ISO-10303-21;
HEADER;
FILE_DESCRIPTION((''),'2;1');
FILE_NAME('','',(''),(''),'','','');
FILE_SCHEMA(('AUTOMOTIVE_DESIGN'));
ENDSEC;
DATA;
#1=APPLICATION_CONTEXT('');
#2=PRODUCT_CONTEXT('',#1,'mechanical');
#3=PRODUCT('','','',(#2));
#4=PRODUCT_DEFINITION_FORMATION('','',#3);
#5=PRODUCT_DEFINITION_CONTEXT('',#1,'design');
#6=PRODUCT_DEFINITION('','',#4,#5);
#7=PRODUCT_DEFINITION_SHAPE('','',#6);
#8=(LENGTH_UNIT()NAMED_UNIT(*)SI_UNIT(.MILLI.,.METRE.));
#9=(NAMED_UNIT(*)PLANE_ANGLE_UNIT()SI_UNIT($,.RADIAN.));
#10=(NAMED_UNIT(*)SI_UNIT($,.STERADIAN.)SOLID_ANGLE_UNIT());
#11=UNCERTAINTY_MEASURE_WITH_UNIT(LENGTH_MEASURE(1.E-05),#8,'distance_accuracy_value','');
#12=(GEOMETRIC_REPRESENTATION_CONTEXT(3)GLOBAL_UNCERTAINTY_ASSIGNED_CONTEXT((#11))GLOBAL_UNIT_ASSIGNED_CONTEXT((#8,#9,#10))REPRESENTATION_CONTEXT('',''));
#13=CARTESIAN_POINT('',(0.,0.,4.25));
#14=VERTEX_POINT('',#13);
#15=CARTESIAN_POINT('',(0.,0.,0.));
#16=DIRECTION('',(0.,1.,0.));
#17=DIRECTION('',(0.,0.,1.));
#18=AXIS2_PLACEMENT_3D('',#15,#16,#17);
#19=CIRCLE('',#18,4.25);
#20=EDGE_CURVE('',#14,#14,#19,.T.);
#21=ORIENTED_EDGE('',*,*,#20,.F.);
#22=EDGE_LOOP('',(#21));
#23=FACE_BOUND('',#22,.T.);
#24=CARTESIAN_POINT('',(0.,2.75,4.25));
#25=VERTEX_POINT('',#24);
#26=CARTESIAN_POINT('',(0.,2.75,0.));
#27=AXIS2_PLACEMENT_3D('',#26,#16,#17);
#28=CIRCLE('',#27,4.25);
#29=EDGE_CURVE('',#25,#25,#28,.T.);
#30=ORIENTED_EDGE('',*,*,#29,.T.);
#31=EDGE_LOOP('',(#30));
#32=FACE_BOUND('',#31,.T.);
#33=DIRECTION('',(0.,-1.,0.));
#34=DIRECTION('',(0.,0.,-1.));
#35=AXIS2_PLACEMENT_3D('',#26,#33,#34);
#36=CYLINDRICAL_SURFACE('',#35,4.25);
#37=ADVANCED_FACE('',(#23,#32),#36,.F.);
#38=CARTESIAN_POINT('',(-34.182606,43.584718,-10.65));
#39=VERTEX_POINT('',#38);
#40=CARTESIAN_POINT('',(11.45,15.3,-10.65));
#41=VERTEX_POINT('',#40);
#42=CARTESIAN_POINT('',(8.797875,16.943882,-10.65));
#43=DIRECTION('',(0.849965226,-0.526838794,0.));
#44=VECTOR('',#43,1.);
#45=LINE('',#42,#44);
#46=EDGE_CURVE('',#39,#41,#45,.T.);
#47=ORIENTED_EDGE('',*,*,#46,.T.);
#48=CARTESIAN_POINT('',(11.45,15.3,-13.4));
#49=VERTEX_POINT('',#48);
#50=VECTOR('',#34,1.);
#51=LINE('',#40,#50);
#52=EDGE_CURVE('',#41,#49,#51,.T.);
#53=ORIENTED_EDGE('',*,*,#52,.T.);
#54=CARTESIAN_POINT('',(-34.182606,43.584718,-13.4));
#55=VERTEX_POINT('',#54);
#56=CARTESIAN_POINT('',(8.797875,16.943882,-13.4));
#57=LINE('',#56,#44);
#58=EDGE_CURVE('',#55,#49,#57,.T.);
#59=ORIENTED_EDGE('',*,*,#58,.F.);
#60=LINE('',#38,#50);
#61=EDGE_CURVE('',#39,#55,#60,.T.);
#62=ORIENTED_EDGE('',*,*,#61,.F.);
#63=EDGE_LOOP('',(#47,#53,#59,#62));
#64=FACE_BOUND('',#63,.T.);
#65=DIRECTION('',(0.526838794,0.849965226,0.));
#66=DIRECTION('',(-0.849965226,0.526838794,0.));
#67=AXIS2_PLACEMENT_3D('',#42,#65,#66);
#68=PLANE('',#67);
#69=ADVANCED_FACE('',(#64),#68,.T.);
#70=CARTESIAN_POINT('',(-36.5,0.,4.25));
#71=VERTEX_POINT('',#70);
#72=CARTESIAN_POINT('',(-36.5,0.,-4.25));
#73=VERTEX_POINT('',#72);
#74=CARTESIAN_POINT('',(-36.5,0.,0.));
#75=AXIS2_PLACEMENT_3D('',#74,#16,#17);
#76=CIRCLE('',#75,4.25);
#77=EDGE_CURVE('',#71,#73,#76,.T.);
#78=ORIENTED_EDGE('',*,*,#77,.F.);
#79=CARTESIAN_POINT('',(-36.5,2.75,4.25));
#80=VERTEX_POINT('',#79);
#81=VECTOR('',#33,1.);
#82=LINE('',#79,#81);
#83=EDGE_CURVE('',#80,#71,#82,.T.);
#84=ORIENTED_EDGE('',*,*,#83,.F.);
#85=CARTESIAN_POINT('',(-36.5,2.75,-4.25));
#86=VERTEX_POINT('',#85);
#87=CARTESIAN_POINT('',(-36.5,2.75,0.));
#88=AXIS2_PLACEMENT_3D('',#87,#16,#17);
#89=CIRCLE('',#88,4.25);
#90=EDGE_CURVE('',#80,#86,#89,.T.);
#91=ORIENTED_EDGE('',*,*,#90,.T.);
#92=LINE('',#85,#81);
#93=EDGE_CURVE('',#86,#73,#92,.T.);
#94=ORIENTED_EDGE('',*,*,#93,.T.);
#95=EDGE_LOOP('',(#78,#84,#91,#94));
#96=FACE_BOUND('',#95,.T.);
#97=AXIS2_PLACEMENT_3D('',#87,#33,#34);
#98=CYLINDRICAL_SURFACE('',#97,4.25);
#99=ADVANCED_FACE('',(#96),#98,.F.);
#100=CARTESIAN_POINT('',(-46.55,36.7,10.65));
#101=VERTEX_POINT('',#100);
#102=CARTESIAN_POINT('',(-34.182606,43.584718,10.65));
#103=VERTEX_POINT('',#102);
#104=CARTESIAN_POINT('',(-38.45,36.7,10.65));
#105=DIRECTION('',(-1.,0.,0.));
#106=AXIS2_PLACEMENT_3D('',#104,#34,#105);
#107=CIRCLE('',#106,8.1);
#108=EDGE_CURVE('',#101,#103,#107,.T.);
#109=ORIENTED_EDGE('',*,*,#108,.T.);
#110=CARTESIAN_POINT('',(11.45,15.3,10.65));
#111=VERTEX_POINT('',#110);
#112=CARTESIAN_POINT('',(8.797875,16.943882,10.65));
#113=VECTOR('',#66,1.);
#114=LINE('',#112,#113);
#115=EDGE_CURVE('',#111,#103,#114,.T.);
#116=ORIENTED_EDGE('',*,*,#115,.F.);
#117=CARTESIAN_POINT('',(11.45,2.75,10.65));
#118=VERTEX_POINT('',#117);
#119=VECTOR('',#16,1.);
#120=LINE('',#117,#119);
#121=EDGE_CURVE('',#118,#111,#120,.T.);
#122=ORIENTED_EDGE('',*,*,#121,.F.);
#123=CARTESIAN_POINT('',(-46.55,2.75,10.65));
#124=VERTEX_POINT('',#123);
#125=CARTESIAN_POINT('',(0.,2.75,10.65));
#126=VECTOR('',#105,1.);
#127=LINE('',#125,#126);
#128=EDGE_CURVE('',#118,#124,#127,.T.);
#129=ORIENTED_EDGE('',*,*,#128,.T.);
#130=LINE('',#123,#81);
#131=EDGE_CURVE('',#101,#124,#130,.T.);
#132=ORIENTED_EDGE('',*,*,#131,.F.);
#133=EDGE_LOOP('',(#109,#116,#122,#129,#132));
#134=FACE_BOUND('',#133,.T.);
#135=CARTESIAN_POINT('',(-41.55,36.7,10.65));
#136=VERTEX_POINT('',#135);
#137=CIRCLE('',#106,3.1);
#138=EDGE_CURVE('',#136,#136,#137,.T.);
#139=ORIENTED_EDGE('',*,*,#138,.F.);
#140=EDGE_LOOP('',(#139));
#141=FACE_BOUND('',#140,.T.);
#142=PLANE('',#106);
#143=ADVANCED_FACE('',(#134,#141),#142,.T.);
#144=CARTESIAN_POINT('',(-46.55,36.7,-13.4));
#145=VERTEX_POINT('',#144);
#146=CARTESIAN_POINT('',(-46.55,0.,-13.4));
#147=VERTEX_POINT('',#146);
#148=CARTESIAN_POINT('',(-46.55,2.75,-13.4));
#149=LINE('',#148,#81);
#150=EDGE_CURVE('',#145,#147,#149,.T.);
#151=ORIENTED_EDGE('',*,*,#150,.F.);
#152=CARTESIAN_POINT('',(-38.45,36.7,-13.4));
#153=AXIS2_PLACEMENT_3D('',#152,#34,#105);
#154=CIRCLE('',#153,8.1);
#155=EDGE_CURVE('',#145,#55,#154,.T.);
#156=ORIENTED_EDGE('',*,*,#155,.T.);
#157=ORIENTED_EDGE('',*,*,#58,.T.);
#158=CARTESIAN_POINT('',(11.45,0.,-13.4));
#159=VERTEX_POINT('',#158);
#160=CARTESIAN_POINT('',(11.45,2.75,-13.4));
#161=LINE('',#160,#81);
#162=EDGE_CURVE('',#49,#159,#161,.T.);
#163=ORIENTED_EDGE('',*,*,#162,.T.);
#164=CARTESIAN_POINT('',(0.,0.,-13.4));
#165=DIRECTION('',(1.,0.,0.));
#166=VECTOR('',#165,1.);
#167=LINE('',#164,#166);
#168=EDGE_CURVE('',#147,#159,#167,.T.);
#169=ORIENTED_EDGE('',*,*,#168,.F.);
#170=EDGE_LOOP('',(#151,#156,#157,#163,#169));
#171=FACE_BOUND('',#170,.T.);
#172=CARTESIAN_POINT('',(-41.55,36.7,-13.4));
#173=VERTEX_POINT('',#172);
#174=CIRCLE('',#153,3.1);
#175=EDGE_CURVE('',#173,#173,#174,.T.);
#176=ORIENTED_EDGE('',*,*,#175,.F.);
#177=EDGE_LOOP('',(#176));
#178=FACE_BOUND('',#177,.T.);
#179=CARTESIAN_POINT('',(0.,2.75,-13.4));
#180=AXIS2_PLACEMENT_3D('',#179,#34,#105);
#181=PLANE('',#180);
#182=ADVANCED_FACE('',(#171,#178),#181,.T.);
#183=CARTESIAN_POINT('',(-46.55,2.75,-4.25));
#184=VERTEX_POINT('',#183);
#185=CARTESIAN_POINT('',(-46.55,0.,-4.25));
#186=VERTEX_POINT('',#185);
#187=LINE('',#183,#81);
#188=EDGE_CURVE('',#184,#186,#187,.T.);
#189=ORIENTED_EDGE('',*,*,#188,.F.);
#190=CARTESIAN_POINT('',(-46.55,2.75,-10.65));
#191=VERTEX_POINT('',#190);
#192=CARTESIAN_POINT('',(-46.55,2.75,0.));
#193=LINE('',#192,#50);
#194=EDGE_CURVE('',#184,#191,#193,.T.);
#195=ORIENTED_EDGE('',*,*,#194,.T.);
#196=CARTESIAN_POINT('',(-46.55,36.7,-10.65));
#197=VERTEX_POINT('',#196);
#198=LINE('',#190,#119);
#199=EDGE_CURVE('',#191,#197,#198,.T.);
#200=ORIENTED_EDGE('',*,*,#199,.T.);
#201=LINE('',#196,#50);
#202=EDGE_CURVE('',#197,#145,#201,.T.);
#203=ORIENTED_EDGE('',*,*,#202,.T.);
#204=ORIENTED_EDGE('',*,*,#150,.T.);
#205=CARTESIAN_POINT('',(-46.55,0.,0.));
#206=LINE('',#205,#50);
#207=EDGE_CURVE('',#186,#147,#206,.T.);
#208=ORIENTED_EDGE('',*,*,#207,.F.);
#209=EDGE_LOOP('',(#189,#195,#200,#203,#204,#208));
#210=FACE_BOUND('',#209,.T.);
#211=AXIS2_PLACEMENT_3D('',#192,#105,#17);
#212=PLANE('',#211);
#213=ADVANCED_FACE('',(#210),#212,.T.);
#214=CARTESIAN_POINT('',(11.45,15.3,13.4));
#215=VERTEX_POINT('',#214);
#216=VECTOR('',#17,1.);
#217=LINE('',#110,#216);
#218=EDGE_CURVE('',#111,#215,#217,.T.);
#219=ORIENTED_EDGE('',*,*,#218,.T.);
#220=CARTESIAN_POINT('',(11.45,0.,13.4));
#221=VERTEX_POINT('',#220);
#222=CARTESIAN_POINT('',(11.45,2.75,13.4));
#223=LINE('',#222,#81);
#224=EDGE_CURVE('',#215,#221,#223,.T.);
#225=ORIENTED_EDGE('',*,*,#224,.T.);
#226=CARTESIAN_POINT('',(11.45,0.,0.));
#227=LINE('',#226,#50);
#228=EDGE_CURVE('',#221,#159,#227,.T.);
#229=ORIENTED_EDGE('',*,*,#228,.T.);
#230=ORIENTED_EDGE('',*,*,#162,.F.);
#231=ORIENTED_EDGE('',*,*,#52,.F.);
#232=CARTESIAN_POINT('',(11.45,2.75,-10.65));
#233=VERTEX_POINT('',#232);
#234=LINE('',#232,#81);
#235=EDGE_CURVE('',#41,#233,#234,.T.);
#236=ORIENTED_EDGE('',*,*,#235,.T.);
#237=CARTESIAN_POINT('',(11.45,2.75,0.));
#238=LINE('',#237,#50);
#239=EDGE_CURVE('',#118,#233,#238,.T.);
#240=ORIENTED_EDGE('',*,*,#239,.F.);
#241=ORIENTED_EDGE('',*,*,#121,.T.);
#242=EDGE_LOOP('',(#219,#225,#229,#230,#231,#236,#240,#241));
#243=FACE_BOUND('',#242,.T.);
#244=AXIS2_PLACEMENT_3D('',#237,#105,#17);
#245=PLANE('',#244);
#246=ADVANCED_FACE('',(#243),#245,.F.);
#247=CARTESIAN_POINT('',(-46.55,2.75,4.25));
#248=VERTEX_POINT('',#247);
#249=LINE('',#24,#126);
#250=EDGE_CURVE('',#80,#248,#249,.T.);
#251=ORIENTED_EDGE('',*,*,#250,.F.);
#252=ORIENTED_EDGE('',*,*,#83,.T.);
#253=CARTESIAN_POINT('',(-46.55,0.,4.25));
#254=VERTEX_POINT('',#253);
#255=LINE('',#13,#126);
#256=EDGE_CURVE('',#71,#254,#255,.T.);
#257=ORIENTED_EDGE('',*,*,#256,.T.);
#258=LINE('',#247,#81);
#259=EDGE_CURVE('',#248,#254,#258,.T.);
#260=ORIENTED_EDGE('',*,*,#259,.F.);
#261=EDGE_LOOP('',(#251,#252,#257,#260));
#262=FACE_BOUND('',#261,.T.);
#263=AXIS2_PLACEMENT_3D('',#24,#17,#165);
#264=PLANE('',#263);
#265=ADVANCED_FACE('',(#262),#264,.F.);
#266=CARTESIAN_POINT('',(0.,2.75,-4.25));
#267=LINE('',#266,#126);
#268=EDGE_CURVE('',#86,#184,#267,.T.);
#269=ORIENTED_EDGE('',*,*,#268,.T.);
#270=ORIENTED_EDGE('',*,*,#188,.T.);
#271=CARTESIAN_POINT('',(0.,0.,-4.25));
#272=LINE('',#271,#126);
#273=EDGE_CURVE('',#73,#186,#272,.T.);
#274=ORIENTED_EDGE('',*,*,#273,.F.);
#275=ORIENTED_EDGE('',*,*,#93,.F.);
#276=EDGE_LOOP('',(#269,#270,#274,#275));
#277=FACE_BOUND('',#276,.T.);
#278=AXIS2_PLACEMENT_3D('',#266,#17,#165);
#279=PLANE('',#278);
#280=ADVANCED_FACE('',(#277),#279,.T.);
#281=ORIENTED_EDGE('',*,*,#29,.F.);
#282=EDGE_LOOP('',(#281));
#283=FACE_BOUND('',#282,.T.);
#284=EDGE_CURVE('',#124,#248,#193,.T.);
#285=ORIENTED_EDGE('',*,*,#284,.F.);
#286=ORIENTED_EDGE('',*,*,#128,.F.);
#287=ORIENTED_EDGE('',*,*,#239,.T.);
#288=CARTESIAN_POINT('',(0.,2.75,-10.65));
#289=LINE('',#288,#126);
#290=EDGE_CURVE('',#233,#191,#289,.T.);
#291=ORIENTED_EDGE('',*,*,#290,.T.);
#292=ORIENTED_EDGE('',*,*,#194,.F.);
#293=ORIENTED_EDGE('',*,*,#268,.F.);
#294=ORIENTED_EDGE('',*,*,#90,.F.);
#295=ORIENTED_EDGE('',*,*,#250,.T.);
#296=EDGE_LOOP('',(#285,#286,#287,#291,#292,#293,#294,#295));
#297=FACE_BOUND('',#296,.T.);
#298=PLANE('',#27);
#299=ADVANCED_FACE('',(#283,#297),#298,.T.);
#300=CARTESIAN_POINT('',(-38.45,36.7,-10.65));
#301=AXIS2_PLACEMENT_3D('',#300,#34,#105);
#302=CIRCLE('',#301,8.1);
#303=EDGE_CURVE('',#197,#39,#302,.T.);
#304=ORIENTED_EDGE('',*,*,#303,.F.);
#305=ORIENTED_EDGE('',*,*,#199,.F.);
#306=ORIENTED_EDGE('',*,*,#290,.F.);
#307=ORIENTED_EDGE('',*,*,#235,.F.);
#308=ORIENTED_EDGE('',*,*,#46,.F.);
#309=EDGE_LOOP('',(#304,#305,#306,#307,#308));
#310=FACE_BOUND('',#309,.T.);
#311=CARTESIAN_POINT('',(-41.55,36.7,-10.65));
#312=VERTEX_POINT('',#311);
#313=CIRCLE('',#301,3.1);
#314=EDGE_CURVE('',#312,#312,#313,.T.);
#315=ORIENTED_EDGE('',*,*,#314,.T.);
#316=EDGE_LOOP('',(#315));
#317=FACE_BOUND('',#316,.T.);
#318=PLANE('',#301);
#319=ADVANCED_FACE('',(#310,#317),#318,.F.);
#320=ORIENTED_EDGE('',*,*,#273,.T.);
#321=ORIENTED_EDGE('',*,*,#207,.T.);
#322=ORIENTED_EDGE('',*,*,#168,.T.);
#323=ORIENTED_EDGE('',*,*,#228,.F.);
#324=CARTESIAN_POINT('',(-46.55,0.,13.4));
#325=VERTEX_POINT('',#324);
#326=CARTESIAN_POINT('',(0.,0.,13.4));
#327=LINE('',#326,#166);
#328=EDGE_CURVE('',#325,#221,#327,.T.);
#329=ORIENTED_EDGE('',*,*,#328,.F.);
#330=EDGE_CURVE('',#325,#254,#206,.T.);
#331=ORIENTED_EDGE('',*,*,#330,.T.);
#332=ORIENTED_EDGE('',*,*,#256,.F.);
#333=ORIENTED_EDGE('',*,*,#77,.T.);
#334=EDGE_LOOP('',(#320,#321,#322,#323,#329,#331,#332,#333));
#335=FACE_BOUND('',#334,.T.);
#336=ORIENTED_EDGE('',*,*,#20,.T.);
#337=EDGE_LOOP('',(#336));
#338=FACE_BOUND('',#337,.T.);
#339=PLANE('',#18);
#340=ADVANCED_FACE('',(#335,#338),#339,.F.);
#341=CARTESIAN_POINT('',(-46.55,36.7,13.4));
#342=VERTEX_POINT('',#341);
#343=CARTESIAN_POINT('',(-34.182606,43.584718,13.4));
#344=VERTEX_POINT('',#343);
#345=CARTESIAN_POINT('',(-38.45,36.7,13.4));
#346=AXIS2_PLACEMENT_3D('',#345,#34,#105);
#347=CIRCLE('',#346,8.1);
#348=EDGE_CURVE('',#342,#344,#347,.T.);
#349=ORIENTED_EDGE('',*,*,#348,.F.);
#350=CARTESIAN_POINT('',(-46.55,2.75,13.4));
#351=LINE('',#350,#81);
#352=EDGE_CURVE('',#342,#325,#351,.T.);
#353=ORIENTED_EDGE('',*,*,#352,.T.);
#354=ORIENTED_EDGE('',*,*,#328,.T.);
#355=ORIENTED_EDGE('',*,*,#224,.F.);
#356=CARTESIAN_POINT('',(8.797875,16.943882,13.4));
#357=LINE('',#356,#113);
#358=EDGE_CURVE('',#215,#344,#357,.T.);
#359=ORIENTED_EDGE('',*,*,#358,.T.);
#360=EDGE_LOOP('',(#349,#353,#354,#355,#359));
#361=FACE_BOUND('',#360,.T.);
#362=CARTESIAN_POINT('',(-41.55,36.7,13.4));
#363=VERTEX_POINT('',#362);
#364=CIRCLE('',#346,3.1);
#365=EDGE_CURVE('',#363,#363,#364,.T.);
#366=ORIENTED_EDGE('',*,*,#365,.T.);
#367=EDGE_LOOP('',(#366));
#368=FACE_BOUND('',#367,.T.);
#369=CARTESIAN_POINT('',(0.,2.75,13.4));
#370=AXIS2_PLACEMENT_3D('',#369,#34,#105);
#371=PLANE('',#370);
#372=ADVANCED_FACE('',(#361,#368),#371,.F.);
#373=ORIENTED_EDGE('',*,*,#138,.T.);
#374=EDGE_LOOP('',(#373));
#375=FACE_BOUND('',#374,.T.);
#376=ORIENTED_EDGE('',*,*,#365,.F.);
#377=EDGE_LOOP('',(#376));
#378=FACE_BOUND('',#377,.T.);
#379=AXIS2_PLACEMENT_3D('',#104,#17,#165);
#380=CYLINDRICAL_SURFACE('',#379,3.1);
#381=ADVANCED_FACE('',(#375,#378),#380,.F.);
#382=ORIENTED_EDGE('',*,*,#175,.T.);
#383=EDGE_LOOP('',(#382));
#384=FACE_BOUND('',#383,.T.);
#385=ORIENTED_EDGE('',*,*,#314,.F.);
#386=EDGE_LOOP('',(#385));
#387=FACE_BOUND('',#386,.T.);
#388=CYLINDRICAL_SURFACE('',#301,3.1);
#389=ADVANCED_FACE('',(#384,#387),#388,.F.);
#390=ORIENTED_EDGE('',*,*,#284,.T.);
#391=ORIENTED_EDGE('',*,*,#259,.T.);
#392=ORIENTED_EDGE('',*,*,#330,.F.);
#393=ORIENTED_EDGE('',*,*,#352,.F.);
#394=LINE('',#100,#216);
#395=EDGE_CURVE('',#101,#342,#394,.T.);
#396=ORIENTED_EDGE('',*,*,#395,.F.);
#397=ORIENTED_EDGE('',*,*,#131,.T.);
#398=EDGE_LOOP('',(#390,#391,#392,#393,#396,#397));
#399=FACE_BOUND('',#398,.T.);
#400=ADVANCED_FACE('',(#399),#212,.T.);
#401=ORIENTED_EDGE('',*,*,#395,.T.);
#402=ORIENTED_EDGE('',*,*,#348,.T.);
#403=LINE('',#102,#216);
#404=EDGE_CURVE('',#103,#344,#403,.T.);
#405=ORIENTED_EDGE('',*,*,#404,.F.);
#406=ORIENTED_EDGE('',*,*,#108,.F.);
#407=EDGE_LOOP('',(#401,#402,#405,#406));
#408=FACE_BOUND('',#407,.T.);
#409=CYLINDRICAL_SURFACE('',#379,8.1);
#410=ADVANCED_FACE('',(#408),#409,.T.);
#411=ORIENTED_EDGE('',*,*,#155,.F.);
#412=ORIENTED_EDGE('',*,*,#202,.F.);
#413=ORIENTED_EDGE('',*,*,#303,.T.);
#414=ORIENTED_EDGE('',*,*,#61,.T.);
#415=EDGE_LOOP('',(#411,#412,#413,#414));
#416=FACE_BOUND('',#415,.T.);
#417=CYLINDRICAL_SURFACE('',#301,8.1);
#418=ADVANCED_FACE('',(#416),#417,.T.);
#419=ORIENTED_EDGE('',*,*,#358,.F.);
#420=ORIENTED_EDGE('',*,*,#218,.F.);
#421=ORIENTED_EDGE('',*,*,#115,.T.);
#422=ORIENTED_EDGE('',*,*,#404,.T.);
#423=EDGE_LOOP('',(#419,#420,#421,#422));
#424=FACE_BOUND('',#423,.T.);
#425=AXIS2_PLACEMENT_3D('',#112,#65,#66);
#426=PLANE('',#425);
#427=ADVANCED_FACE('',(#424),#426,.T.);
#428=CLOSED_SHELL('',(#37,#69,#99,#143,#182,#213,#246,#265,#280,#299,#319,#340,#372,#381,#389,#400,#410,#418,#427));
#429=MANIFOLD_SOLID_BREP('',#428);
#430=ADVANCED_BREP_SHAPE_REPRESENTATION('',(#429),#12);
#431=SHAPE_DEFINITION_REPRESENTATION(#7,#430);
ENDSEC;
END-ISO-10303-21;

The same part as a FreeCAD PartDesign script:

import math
import FreeCAD as App
import Part
import Sketcher

doc = App.newDocument("Part")
body = doc.addObject("PartDesign::Body", "Body")

# Sketch on XZ plane
sketch1 = body.newObject("Sketcher::SketchObject", "Sketch")
sketch1.AttachmentSupport = (doc.getObject("XZ_Plane"), [""])
sketch1.MapMode = "FlatFace"
sketch1.addGeometry([
    Part.LineSegment(App.Vector(-46.5, -4.2, 0), App.Vector(-36.5, -4.2, 0)),  # 0
    Part.ArcOfCircle(Part.Circle(App.Vector(-36.5, 0, 0), App.Vector(0, 0, 1), 4.2), math.radians(-90), math.radians(0)),  # 1
    Part.ArcOfCircle(Part.Circle(App.Vector(-36.5, 0, 0), App.Vector(0, 0, 1), 4.2), math.radians(0), math.radians(90)),  # 2
    Part.LineSegment(App.Vector(-36.5, 4.2, 0), App.Vector(-46.5, 4.2, 0)),  # 3
    Part.LineSegment(App.Vector(-46.5, 4.2, 0), App.Vector(-46.5, 13.4, 0)),  # 4
    Part.LineSegment(App.Vector(-46.5, 13.4, 0), App.Vector(11.4, 13.4, 0)),  # 5
    Part.LineSegment(App.Vector(11.4, 13.4, 0), App.Vector(11.4, -13.4, 0)),  # 6
    Part.LineSegment(App.Vector(11.4, -13.4, 0), App.Vector(-46.5, -13.4, 0)),  # 7
    Part.LineSegment(App.Vector(-46.5, -13.4, 0), App.Vector(-46.5, -4.2, 0)),  # 8
    Part.Circle(App.Vector(0, 0, 0), App.Vector(0, 0, 1), 4.2),  # 9
], False)
sketch1.addConstraint([
    Sketcher.Constraint("Tangent", 0, 2, 1, 1),
    Sketcher.Constraint("Tangent", 1, 2, 2, 1),
    Sketcher.Constraint("Tangent", 2, 2, 3, 1),
    Sketcher.Constraint("Coincident", 3, 2, 4, 1),
    Sketcher.Constraint("Coincident", 4, 2, 5, 1),
    Sketcher.Constraint("Coincident", 5, 2, 6, 1),
    Sketcher.Constraint("Coincident", 6, 2, 7, 1),
    Sketcher.Constraint("Coincident", 7, 2, 8, 1),
    Sketcher.Constraint("Coincident", 8, 2, 0, 1),
    Sketcher.Constraint("Horizontal", 0),
    Sketcher.Constraint("Horizontal", 3),
    Sketcher.Constraint("Vertical", 4),
    Sketcher.Constraint("Horizontal", 5),
    Sketcher.Constraint("Vertical", 6),
    Sketcher.Constraint("Horizontal", 7),
    Sketcher.Constraint("Vertical", 8),
    Sketcher.Constraint("Coincident", 9, 3, -1, 1),
    Sketcher.Constraint("Equal", 1, 2),
    Sketcher.Constraint("Equal", 2, 9),
    Sketcher.Constraint("Symmetric", 4, 2, 7, 2, -1),
    Sketcher.Constraint("PointOnObject", 1, 3, -1),
    Sketcher.Constraint("PointOnObject", 1, 2, -1),
    Sketcher.Constraint("Diameter", 9, 8.5),
    Sketcher.Constraint("DistanceX", 5, 1, 5, 2, 58.0),
    Sketcher.Constraint("DistanceY", 6, 2, 6, 1, 26.8),
    Sketcher.Constraint("DistanceX", 0, 1, 0, 2, 10.05),
    Sketcher.Constraint("DistanceX", 1, 3, -1, 1, 36.5),
])
pad1 = body.newObject("PartDesign::Pad", "Pad")
pad1.Profile = sketch1
pad1.Length = 2.75
pad1.Reversed = True

# Sketch on XY plane
sketch2 = body.newObject("Sketcher::SketchObject", "Sketch001")
sketch2.AttachmentSupport = (doc.getObject("XY_Plane"), [""])
sketch2.MapMode = "FlatFace"
sketch2.AttachmentOffset = App.Placement(App.Vector(0, 0, 13.4), App.Rotation())
sketch2.addGeometry([
    Part.LineSegment(App.Vector(-46.5, 36.7, 0), App.Vector(-46.5, 0, 0)),  # 0
    Part.LineSegment(App.Vector(-46.5, 0, 0), App.Vector(11.4, 0, 0)),  # 1
    Part.LineSegment(App.Vector(11.4, 0, 0), App.Vector(11.4, 15.3, 0)),  # 2
    Part.LineSegment(App.Vector(11.4, 15.3, 0), App.Vector(-34.2, 43.6, 0)),  # 3
    Part.ArcOfCircle(Part.Circle(App.Vector(-38.5, 36.7, 0), App.Vector(0, 0, 1), 8.1), math.radians(58), math.radians(180)),  # 4
    Part.Circle(App.Vector(-38.5, 36.7, 0), App.Vector(0, 0, 1), 3.1),  # 5
], False)
sketch2.addConstraint([
    Sketcher.Constraint("Coincident", 0, 2, 1, 1),
    Sketcher.Constraint("Coincident", 1, 2, 2, 1),
    Sketcher.Constraint("Coincident", 2, 2, 3, 1),
    Sketcher.Constraint("Tangent", 3, 2, 4, 1),
    Sketcher.Constraint("Tangent", 4, 2, 0, 1),
    Sketcher.Constraint("Vertical", 0),
    Sketcher.Constraint("Horizontal", 1),
    Sketcher.Constraint("Vertical", 2),
    Sketcher.Constraint("Coincident", 5, 3, 4, 3),
    Sketcher.Constraint("PointOnObject", 0, 2, -1),
    Sketcher.Constraint("Diameter", 5, 6.2),
    Sketcher.Constraint("Radius", 4, 8.1),
    Sketcher.Constraint("DistanceX", 1, 1, 1, 2, 58.0),
    Sketcher.Constraint("DistanceY", 0, 2, 0, 1, 36.7),
    Sketcher.Constraint("DistanceY", 2, 1, 2, 2, 15.3),
    Sketcher.Constraint("DistanceX", 4, 3, -1, 1, 38.45),
])
pad2 = body.newObject("PartDesign::Pad", "Pad001")
pad2.Profile = sketch2
pad2.Length = 2.75
pad2.Reversed = True

# Sketch on XY plane
sketch3 = body.newObject("Sketcher::SketchObject", "Sketch002")
sketch3.AttachmentSupport = (doc.getObject("XY_Plane"), [""])
sketch3.MapMode = "FlatFace"
sketch3.AttachmentOffset = App.Placement(App.Vector(0, 0, -10.65), App.Rotation())
sketch3.addGeometry([
    Part.LineSegment(App.Vector(-46.5, 36.7, 0), App.Vector(-46.5, 0, 0)),  # 0
    Part.LineSegment(App.Vector(-46.5, 0, 0), App.Vector(11.4, 0, 0)),  # 1
    Part.LineSegment(App.Vector(11.4, 0, 0), App.Vector(11.4, 15.3, 0)),  # 2
    Part.LineSegment(App.Vector(11.4, 15.3, 0), App.Vector(-34.2, 43.6, 0)),  # 3
    Part.ArcOfCircle(Part.Circle(App.Vector(-38.5, 36.7, 0), App.Vector(0, 0, 1), 8.1), math.radians(58), math.radians(180)),  # 4
    Part.Circle(App.Vector(-38.5, 36.7, 0), App.Vector(0, 0, 1), 3.1),  # 5
], False)
sketch3.addConstraint([
    Sketcher.Constraint("Coincident", 0, 2, 1, 1),
    Sketcher.Constraint("Coincident", 1, 2, 2, 1),
    Sketcher.Constraint("Coincident", 2, 2, 3, 1),
    Sketcher.Constraint("Tangent", 3, 2, 4, 1),
    Sketcher.Constraint("Tangent", 4, 2, 0, 1),
    Sketcher.Constraint("Vertical", 0),
    Sketcher.Constraint("Horizontal", 1),
    Sketcher.Constraint("Vertical", 2),
    Sketcher.Constraint("Coincident", 5, 3, 4, 3),
    Sketcher.Constraint("PointOnObject", 0, 2, -1),
    Sketcher.Constraint("Diameter", 5, 6.2),
    Sketcher.Constraint("Radius", 4, 8.1),
    Sketcher.Constraint("DistanceX", 1, 1, 1, 2, 58.0),
    Sketcher.Constraint("DistanceY", 0, 2, 0, 1, 36.7),
    Sketcher.Constraint("DistanceY", 2, 1, 2, 2, 15.3),
    Sketcher.Constraint("DistanceX", 4, 3, -1, 1, 38.45),
])
pad3 = body.newObject("PartDesign::Pad", "Pad002")
pad3.Profile = sketch3
pad3.Length = 2.75
pad3.Reversed = True

doc.recompute()
